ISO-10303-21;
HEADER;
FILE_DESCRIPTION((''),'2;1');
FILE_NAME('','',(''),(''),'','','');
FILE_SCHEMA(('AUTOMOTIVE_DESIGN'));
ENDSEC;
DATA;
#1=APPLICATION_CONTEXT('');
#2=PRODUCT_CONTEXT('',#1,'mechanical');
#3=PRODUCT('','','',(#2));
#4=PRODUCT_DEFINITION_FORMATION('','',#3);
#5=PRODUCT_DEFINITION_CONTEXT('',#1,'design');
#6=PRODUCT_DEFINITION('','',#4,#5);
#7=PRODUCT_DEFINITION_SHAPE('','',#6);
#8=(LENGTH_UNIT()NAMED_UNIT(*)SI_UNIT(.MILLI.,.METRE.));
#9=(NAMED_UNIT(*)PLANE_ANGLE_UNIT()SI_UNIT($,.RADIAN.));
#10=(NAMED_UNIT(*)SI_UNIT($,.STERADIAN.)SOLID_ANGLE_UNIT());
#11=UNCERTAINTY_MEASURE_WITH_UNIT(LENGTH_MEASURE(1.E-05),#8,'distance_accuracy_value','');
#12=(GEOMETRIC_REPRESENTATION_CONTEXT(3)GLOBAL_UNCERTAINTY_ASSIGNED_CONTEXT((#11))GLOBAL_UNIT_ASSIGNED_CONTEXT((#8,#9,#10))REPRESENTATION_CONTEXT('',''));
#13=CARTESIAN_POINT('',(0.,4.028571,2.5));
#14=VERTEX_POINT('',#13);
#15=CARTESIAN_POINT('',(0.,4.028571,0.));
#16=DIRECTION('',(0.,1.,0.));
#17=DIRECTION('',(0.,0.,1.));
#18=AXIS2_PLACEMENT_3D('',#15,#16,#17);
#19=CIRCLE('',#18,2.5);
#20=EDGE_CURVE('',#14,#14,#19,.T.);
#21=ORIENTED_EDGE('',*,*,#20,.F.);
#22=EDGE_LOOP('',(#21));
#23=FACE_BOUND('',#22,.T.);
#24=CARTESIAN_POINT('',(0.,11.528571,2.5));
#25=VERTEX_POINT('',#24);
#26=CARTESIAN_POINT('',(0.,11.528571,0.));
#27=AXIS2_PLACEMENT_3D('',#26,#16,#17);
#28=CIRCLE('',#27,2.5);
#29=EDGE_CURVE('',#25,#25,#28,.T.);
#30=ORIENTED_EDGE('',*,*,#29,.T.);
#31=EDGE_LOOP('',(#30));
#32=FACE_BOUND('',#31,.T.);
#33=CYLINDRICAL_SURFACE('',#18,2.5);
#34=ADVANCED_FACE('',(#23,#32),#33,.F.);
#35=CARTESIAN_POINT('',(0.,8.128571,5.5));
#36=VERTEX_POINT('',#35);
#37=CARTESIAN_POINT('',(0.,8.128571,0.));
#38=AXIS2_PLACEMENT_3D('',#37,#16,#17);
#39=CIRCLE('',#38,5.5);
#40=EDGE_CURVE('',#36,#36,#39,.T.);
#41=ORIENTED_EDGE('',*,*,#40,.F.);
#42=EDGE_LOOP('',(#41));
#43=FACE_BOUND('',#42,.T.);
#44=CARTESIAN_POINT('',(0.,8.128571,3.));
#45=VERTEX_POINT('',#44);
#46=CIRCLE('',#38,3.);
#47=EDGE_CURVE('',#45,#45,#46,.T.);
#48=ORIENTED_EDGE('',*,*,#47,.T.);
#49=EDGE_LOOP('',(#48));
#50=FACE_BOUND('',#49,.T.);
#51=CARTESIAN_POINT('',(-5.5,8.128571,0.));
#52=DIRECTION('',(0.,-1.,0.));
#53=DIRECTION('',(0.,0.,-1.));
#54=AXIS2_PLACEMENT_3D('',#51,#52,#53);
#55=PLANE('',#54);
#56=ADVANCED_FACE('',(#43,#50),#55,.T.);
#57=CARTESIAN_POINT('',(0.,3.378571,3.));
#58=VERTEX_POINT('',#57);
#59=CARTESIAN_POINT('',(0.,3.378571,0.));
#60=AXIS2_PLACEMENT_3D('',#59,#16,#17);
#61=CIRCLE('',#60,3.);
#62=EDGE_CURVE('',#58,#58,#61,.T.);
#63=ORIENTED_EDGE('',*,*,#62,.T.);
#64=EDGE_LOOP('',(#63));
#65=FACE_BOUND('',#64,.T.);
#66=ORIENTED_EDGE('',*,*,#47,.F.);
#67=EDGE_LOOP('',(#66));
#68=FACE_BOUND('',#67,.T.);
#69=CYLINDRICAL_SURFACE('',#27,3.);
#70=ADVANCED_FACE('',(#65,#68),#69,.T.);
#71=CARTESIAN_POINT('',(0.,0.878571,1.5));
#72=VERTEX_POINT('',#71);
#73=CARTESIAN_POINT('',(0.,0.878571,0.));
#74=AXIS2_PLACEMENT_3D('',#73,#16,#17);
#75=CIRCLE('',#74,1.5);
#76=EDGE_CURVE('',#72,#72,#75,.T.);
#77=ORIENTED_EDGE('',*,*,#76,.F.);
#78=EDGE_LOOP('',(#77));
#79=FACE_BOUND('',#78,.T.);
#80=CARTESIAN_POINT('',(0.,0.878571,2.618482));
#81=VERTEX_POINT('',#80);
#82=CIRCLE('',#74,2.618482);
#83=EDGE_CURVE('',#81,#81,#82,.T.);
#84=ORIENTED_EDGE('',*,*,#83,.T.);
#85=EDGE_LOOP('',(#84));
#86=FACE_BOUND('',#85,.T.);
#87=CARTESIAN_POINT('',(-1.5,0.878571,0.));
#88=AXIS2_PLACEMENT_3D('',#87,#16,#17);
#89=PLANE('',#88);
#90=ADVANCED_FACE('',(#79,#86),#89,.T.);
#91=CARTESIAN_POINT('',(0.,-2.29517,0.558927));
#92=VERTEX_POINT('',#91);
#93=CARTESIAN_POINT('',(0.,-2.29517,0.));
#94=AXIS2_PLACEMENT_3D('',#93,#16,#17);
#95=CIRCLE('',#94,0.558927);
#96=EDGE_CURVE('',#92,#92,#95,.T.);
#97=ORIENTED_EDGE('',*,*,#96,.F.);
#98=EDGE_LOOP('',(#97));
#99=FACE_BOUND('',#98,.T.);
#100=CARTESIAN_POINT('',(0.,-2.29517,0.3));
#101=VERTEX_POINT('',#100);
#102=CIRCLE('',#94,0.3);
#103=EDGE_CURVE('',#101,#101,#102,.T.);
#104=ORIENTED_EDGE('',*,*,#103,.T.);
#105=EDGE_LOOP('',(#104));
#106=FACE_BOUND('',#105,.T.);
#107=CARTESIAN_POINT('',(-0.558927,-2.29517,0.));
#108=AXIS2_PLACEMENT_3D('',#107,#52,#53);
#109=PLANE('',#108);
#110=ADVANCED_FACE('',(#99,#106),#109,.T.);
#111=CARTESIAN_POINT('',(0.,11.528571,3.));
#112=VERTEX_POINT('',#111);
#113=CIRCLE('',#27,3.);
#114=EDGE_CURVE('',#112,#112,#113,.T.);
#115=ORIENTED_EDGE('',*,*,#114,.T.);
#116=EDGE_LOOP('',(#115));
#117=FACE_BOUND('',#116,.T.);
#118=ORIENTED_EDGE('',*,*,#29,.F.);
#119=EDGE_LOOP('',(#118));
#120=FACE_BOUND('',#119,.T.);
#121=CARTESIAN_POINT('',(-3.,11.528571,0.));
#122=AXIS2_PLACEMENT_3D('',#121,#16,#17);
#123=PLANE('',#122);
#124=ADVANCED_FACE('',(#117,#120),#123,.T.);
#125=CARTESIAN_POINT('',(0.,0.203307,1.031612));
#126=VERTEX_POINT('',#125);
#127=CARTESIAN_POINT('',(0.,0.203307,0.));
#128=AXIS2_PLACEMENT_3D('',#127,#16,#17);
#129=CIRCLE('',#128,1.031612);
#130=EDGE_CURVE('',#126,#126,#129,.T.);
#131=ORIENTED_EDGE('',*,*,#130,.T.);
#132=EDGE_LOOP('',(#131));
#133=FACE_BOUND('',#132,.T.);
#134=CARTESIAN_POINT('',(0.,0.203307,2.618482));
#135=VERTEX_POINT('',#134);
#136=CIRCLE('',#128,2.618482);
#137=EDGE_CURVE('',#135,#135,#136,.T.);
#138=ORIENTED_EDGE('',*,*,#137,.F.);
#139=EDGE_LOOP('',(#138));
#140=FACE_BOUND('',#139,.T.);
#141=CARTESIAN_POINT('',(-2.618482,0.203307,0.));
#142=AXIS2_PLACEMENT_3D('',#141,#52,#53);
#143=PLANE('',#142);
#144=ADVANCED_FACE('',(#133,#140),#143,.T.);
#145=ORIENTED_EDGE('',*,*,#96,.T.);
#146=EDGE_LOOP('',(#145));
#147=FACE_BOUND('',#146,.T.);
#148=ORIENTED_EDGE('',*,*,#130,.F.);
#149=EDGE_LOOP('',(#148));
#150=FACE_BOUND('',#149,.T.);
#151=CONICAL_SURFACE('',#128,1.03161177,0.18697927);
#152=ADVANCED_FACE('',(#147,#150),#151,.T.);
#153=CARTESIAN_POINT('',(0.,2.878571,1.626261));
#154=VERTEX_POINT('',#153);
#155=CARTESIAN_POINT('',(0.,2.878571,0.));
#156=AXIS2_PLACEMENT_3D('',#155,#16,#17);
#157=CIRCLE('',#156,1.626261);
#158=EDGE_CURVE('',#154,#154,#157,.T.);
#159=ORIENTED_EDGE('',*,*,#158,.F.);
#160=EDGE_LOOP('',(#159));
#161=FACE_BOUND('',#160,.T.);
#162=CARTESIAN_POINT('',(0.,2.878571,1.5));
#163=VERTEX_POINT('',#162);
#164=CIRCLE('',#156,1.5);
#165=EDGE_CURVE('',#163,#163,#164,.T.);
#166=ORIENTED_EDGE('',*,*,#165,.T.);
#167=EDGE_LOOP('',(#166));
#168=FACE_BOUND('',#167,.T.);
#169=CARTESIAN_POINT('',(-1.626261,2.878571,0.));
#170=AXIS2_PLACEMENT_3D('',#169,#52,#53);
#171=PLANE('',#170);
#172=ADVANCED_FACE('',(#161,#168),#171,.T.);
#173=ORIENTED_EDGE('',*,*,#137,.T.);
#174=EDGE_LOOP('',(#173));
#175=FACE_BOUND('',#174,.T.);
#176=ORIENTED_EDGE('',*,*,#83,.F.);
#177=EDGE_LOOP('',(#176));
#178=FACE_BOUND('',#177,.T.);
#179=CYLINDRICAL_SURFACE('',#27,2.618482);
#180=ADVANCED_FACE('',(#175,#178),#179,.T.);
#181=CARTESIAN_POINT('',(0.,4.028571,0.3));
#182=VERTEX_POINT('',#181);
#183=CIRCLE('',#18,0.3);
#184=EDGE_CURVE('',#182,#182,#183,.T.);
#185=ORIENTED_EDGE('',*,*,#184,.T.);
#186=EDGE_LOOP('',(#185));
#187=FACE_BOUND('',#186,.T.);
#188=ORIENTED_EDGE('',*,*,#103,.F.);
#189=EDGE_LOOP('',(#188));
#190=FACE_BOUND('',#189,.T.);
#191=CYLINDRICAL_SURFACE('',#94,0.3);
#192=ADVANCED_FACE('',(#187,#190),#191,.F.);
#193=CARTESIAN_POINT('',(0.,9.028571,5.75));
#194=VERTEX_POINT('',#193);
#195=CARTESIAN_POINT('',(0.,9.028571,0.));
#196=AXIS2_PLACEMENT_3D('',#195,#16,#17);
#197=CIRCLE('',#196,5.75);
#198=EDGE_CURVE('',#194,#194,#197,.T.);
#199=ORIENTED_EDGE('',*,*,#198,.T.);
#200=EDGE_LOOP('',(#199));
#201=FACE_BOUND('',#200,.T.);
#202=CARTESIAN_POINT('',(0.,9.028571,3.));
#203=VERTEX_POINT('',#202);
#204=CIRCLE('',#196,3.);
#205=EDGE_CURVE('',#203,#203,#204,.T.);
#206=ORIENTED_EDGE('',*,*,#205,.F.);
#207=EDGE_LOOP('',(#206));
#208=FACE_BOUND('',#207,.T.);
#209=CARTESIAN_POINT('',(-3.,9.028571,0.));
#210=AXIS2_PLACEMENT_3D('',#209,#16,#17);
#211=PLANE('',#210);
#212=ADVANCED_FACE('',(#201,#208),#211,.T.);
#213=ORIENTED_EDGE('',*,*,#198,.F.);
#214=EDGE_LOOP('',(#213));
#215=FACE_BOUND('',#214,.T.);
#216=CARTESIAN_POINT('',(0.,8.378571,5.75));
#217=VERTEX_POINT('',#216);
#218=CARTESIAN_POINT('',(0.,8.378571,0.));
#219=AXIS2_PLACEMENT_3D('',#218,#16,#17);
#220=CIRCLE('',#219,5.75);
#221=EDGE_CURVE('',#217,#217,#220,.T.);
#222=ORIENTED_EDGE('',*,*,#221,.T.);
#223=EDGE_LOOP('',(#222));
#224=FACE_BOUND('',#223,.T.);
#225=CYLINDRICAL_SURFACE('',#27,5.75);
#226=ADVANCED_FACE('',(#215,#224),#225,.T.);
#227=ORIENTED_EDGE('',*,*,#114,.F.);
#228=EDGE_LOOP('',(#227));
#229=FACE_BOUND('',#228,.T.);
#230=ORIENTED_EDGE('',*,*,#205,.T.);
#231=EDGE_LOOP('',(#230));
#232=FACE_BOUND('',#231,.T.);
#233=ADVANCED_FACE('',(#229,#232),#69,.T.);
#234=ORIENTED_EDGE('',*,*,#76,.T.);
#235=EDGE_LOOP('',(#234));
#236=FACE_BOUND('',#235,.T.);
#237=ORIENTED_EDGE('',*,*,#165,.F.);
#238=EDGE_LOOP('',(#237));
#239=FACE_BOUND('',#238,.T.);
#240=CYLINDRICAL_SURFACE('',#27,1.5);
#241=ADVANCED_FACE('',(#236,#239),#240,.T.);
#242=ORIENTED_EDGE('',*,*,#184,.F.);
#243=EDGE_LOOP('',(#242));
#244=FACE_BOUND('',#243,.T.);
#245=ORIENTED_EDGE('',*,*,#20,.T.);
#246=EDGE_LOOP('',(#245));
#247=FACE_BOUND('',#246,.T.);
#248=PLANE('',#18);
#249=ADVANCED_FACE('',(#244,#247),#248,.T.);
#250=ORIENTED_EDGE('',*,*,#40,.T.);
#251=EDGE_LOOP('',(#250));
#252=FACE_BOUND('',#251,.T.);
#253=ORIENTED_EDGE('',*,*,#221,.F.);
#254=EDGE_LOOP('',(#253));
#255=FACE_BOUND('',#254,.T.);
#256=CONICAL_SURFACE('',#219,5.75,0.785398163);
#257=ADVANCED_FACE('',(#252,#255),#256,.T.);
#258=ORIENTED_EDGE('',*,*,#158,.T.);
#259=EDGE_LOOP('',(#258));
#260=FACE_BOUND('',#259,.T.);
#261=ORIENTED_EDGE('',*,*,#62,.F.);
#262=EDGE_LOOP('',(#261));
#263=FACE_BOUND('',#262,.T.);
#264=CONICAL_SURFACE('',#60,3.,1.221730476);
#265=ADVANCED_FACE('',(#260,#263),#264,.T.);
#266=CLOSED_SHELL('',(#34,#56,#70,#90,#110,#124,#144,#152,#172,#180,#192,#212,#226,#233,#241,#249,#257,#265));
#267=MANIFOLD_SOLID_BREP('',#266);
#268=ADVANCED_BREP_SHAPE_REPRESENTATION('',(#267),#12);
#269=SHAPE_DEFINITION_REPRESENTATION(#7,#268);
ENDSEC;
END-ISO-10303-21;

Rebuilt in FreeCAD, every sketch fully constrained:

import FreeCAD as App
import Part
import Sketcher

V = App.Vector
Q = App.Units.Quantity

doc = App.newDocument("Part")
body = doc.addObject("PartDesign::Body", "Body")

# Sketch on XY plane
sketch1 = body.newObject("Sketcher::SketchObject", "Sketch")
sketch1.AttachmentSupport = (doc.getObject("XY_Plane"), [""])
sketch1.MapMode = "FlatFace"
sketch1.addGeometry(Part.LineSegment(V(-3, 11.53, 0), V(-3, 9.03, 0)), False)
sketch1.addGeometry(Part.LineSegment(V(-3, 9.03, 0), V(-5.75, 9.03, 0)), False)
sketch1.addGeometry(Part.LineSegment(V(-5.75, 9.03, 0), V(-5.75, 8.38, 0)), False)
sketch1.addGeometry(Part.LineSegment(V(-5.75, 8.38, 0), V(-5.5, 8.13, 0)), False)
sketch1.addGeometry(Part.LineSegment(V(-5.5, 8.13, 0), V(-3, 8.13, 0)), False)
sketch1.addGeometry(Part.LineSegment(V(-3, 8.13, 0), V(-3, 3.38, 0)), False)
sketch1.addGeometry(Part.LineSegment(V(-3, 3.38, 0), V(-1.63, 2.88, 0)), False)
sketch1.addGeometry(Part.LineSegment(V(-1.63, 2.88, 0), V(-1.5, 2.88, 0)), False)
sketch1.addGeometry(Part.LineSegment(V(-1.5, 2.88, 0), V(-1.5, 0.88, 0)), False)
sketch1.addGeometry(Part.LineSegment(V(-1.5, 0.88, 0), V(-2.62, 0.88, 0)), False)
sketch1.addGeometry(Part.LineSegment(V(-2.62, 0.88, 0), V(-2.62, 0.2, 0)), False)
sketch1.addGeometry(Part.LineSegment(V(-2.62, 0.2, 0), V(-1.03, 0.2, 0)), False)
sketch1.addGeometry(Part.LineSegment(V(-1.03, 0.2, 0), V(-0.56, -2.3, 0)), False)
sketch1.addGeometry(Part.LineSegment(V(-0.56, -2.3, 0), V(0, -2.3, 0)), False)
sketch1.addGeometry(Part.LineSegment(V(0, -2.3, 0), V(0, 11.53, 0)), False)
sketch1.addGeometry(Part.LineSegment(V(0, 11.53, 0), V(-3, 11.53, 0)), False)
sketch1.addConstraint(Sketcher.Constraint("Coincident", 0, 2, 1, 1))
sketch1.addConstraint(Sketcher.Constraint("Coincident", 1, 2, 2, 1))
sketch1.addConstraint(Sketcher.Constraint("Coincident", 2, 2, 3, 1))
sketch1.addConstraint(Sketcher.Constraint("Coincident", 3, 2, 4, 1))
sketch1.addConstraint(Sketcher.Constraint("Coincident", 4, 2, 5, 1))
sketch1.addConstraint(Sketcher.Constraint("Coincident", 5, 2, 6, 1))
sketch1.addConstraint(Sketcher.Constraint("Coincident", 6, 2, 7, 1))
sketch1.addConstraint(Sketcher.Constraint("Coincident", 7, 2, 8, 1))
sketch1.addConstraint(Sketcher.Constraint("Coincident", 8, 2, 9, 1))
sketch1.addConstraint(Sketcher.Constraint("Coincident", 9, 2, 10, 1))
sketch1.addConstraint(Sketcher.Constraint("Coincident", 10, 2, 11, 1))
sketch1.addConstraint(Sketcher.Constraint("Coincident", 11, 2, 12, 1))
sketch1.addConstraint(Sketcher.Constraint("Coincident", 12, 2, 13, 1))
sketch1.addConstraint(Sketcher.Constraint("Coincident", 13, 2, 14, 1))
sketch1.addConstraint(Sketcher.Constraint("Coincident", 14, 2, 15, 1))
sketch1.addConstraint(Sketcher.Constraint("Coincident", 15, 2, 0, 1))
sketch1.addConstraint(Sketcher.Constraint("Vertical", 0))
sketch1.addConstraint(Sketcher.Constraint("Horizontal", 1))
sketch1.addConstraint(Sketcher.Constraint("Vertical", 2))
sketch1.addConstraint(Sketcher.Constraint("Horizontal", 4))
sketch1.addConstraint(Sketcher.Constraint("Vertical", 5))
sketch1.addConstraint(Sketcher.Constraint("Horizontal", 7))
sketch1.addConstraint(Sketcher.Constraint("Vertical", 8))
sketch1.addConstraint(Sketcher.Constraint("Horizontal", 9))
sketch1.addConstraint(Sketcher.Constraint("Vertical", 10))
sketch1.addConstraint(Sketcher.Constraint("Horizontal", 11))
sketch1.addConstraint(Sketcher.Constraint("Horizontal", 13))
sketch1.addConstraint(Sketcher.Constraint("Vertical", 14))
sketch1.addConstraint(Sketcher.Constraint("Horizontal", 15))
sketch1.addConstraint(Sketcher.Constraint("PointOnObject", 13, 2, -2))
sketch1.addConstraint(Sketcher.Constraint("Vertical", 0, 2, 4, 2))
sketch1.addConstraint(Sketcher.Constraint("Equal", 4, 0))
sketch1.addConstraint(Sketcher.Constraint("DistanceX", 15, 2, 15, 1, 3.0))
sketch1.addConstraint(Sketcher.Constraint("DistanceY", 8, 2, 8, 1, 2.0))
sketch1.addConstraint(Sketcher.Constraint("Angle", 3, Q("-45 deg")))
sketch1.addConstraint(Sketcher.Constraint("Angle", 6, Q("-20 deg")))
sketch1.addConstraint(Sketcher.Constraint("DistanceX", 4, 1, 4, 2, 2.5))
sketch1.addConstraint(Sketcher.Constraint("DistanceY", 5, 2, 2, 2, 5.0))
sketch1.addConstraint(Sketcher.Constraint("DistanceX", 3, 2, 7, 2, 4.0))
sketch1.addConstraint(Sketcher.Constraint("DistanceX", 1, 2, 1, 1, 2.75))
sketch1.addConstraint(Sketcher.Constraint("DistanceY", 2, 2, 2, 1, 0.65))
sketch1.addConstraint(Sketcher.Constraint("DistanceY", 6, 2, 5, 2, 0.5))
sketch1.addConstraint(Sketcher.Constraint("DistanceX", 11, 1, 11, 2, 1.586871))
sketch1.addConstraint(Sketcher.Constraint("DistanceY", 14, 1, 14, 2, 13.823741))
sketch1.addConstraint(Sketcher.Constraint("DistanceX", 9, 2, 9, 1, 1.118482))
sketch1.addConstraint(Sketcher.Constraint("DistanceX", 13, 1, 13, 2, 0.558927))
sketch1.addConstraint(Sketcher.Constraint("DistanceY", 10, 2, 10, 1, 0.675264))
sketch1.addConstraint(Sketcher.Constraint("DistanceY", -1, 1, 0, 2, 9.028571))
revolution = body.newObject("PartDesign::Revolution", "Revolution")
revolution.Profile = sketch1
revolution.ReferenceAxis = (sketch1, ["V_Axis"])
revolution.Angle = 360

# Sketch on XZ plane
sketch2 = body.newObject("Sketcher::SketchObject", "Sketch001")
sketch2.AttachmentSupport = (doc.getObject("XZ_Plane"), [""])
sketch2.MapMode = "FlatFace"
sketch2.AttachmentOffset = App.Placement(V(0, 0, -11.528571), App.Rotation())
sketch2.addGeometry(Part.Circle(V(0, 0, 0), V(0, 0, 1), 0.3), False)
sketch2.addConstraint(Sketcher.Constraint("Coincident", 0, 3, -1, 1))
sketch2.addConstraint(Sketcher.Constraint("Diameter", 0, 0.6))
pocket1 = body.newObject("PartDesign::Pocket", "Pocket")
pocket1.Profile = sketch2
pocket1.Type = "ThroughAll"
pocket1.Reversed = True

# Sketch on XZ plane
sketch3 = body.newObject("Sketcher::SketchObject", "Sketch002")
sketch3.AttachmentSupport = (doc.getObject("XZ_Plane"), [""])
sketch3.MapMode = "FlatFace"
sketch3.AttachmentOffset = App.Placement(V(0, 0, -11.528571), App.Rotation())
sketch3.addGeometry(Part.Circle(V(0, 0, 0), V(0, 0, 1), 2.5), False)
sketch3.addGeometry(Part.Circle(V(0, 0, 0), V(0, 0, 1), 0.3), False)
sketch3.addConstraint(Sketcher.Constraint("Coincident", 0, 3, -1, 1))
sketch3.addConstraint(Sketcher.Constraint("Coincident", 1, 3, -1, 1))
sketch3.addConstraint(Sketcher.Constraint("Diameter", 0, 5.0))
sketch3.addConstraint(Sketcher.Constraint("Diameter", 1, 0.6))
pocket2 = body.newObject("PartDesign::Pocket", "Pocket001")
pocket2.Profile = sketch3
pocket2.Length = 7.5
pocket2.Reversed = True

doc.recompute()
